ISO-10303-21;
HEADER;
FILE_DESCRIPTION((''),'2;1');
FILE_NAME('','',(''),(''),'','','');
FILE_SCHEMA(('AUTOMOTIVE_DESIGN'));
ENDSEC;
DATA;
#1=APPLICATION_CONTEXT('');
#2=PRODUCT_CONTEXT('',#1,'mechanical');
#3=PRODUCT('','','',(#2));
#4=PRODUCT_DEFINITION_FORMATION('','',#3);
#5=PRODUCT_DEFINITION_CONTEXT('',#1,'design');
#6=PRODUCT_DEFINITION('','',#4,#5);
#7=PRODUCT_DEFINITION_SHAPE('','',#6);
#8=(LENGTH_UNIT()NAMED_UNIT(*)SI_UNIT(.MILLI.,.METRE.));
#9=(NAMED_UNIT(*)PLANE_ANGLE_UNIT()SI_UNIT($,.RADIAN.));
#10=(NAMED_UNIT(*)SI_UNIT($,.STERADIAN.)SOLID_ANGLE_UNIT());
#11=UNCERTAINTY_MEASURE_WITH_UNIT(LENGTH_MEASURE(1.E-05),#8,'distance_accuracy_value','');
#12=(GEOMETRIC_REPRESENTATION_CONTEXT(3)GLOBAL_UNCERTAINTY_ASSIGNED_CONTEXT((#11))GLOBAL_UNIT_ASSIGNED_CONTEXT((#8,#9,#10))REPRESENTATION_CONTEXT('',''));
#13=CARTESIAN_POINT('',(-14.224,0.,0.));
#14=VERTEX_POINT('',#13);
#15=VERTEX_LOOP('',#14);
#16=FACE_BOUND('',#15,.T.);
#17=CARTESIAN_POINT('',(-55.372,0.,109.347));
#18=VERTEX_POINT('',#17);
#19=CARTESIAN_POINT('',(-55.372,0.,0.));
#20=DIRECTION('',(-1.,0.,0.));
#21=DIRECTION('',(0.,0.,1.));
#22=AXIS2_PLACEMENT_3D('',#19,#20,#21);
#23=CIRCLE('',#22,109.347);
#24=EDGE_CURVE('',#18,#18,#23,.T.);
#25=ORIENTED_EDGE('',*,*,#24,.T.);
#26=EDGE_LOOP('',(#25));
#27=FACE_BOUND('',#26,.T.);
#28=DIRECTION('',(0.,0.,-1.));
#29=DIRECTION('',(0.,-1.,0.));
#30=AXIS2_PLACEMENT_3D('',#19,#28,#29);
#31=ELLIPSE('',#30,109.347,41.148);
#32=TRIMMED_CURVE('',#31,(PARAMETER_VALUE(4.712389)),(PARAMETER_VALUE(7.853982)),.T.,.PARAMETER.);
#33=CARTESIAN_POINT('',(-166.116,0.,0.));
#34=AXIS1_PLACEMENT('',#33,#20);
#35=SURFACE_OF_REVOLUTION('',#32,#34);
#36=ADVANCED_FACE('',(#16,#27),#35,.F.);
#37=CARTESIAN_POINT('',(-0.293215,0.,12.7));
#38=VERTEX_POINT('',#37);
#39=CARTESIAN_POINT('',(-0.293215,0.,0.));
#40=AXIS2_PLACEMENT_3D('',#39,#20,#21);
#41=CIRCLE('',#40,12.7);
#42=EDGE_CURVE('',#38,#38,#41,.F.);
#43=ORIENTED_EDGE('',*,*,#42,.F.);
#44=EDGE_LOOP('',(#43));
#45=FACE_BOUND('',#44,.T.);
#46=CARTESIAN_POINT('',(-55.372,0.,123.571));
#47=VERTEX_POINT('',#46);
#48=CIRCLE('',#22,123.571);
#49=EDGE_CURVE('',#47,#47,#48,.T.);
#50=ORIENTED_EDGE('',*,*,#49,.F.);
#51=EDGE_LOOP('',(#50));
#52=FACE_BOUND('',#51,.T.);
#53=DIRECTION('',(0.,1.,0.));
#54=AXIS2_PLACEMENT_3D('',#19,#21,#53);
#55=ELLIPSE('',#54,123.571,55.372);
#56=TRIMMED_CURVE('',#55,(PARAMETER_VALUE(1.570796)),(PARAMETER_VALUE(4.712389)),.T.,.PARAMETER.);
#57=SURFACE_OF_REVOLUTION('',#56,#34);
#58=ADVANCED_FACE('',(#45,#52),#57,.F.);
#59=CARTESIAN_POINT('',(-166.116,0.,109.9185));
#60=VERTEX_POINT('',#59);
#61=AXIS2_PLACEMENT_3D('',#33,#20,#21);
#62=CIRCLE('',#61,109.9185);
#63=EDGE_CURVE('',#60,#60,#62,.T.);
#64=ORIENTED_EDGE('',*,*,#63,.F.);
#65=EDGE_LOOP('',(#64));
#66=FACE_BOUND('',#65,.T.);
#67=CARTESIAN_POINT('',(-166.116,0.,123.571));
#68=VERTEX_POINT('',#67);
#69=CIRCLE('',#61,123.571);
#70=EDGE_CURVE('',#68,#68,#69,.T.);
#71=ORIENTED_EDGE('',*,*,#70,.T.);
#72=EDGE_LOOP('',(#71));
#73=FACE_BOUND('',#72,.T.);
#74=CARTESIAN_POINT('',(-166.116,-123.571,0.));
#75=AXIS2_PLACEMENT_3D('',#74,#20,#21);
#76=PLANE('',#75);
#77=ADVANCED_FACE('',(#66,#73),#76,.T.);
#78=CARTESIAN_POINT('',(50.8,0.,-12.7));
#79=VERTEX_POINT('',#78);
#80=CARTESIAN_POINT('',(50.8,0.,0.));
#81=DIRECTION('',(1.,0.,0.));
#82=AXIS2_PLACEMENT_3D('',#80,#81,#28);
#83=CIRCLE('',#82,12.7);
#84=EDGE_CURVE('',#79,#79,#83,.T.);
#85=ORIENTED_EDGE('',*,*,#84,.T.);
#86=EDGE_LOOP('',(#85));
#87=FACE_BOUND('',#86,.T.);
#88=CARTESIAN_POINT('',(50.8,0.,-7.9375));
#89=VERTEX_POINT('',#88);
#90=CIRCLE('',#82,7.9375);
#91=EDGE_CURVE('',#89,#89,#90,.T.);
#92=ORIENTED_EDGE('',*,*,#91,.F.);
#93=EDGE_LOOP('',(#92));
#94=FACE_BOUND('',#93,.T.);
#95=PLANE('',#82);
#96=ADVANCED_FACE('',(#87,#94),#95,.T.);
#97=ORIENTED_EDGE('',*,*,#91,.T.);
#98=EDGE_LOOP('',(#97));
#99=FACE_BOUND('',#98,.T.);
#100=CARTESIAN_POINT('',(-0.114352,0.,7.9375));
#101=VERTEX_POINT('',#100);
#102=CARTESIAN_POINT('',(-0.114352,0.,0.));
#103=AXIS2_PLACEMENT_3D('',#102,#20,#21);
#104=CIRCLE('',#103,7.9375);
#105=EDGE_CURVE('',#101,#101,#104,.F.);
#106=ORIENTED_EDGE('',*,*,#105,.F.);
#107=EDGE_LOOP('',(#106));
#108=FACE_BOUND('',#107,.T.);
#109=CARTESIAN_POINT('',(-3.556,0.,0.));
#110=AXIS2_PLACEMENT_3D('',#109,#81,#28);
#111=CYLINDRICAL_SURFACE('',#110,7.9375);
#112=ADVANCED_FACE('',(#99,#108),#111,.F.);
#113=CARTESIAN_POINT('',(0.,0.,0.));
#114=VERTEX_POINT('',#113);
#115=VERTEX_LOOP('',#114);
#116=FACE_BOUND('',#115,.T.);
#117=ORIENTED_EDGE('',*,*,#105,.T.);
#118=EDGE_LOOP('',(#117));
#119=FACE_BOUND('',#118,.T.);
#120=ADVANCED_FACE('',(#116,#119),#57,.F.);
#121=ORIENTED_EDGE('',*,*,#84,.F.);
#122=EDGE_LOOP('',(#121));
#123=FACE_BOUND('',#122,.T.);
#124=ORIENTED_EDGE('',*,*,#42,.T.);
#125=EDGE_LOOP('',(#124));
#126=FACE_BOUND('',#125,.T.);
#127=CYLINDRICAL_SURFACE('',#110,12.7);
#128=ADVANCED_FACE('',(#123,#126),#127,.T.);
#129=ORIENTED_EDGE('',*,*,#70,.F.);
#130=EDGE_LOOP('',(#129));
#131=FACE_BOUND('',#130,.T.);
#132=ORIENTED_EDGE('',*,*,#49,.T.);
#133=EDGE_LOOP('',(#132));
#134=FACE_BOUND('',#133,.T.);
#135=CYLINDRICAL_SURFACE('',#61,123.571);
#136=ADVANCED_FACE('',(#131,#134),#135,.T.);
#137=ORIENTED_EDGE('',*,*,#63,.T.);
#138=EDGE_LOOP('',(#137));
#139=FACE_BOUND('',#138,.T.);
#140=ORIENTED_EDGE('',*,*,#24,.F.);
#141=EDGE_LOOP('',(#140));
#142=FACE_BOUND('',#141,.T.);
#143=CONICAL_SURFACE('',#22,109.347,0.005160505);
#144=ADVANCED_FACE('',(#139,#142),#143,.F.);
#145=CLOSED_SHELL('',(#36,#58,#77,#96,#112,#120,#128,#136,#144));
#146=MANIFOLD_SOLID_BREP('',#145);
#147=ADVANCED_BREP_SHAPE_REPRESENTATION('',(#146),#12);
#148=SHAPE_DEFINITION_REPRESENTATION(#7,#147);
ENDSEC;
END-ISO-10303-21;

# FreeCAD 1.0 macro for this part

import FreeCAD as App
import Part
import Sketcher
from FreeCAD import Vector
Q = App.Units.Quantity

doc = App.newDocument("Part")
body = doc.addObject("PartDesign::Body", "Body")

# Sketch on XY plane
sketch1 = body.newObject("Sketcher::SketchObject", "Sketch")
sketch1.AttachmentSupport = (doc.getObject("XY_Plane"), [""])
sketch1.MapMode = "FlatFace"
sketch1.addGeometry(Part.LineSegment(Vector(-166.116, -123.571, 0), Vector(-55.372, -123.571, 0)), False)
sketch1.addGeometry(Part.BSplineCurve([Vector(-55.372, -123.571, 0), Vector(0, -123.571, 0), Vector(0, 0, 0)], [3, 3], [3.141592654, 4.71238898], False, 2, [1, 0.707106781, 1], False), False)
sketch1.addGeometry(Part.LineSegment(Vector(0, 0, 0), Vector(-14.224, 0, 0)), False)
sketch1.addGeometry(Part.BSplineCurve([Vector(-55.372, -109.347, 0), Vector(-14.224, -109.347, 0), Vector(-14.224, 0, 0)], [3, 3], [0, 1.570796327], False, 2, [1, 0.707106781, 1], False), False)
sketch1.addGeometry(Part.LineSegment(Vector(-55.372, -109.347, 0), Vector(-166.116, -109.9185, 0)), False)
sketch1.addGeometry(Part.LineSegment(Vector(-166.116, -109.9185, 0), Vector(-166.116, -123.571, 0)), False)
sketch1.addConstraint(Sketcher.Constraint("Block", 1))
sketch1.addConstraint(Sketcher.Constraint("Block", 3))
sketch1.addConstraint(Sketcher.Constraint("Coincident", 0, 2, 1, 1))
sketch1.addConstraint(Sketcher.Constraint("Coincident", 1, 2, 2, 1))
sketch1.addConstraint(Sketcher.Constraint("Coincident", 2, 2, 3, 2))
sketch1.addConstraint(Sketcher.Constraint("Coincident", 3, 1, 4, 1))
sketch1.addConstraint(Sketcher.Constraint("Coincident", 4, 2, 5, 1))
sketch1.addConstraint(Sketcher.Constraint("Coincident", 5, 2, 0, 1))
sketch1.addConstraint(Sketcher.Constraint("Horizontal", 0))
sketch1.addConstraint(Sketcher.Constraint("Vertical", 5))
sketch1.addConstraint(Sketcher.Constraint("DistanceX", 0, 1, 0, 2, Q("4.36 in")))
sketch1.addConstraint(Sketcher.Constraint("DistanceY", 5, 2, 5, 1, Q("0.5375 in")))
revolution = body.newObject("PartDesign::Revolution", "Revolution")
revolution.Profile = sketch1
revolution.ReferenceAxis = (sketch1, ["H_Axis"])
revolution.Angle = 360

# Sketch on YZ plane
sketch2 = body.newObject("Sketcher::SketchObject", "Sketch001")
sketch2.AttachmentSupport = (doc.getObject("YZ_Plane"), [""])
sketch2.MapMode = "FlatFace"
sketch2.addGeometry(Part.Circle(Vector(0, 0, 0), Vector(0, 0, 1), 13), False)
sketch2.addGeometry(Part.Circle(Vector(0, 0, 0), Vector(0, 0, 1), 8), False)
sketch2.addConstraint(Sketcher.Constraint("Coincident", 0, 3, -1, 1))
sketch2.addConstraint(Sketcher.Constraint("Coincident", 1, 3, -1, 1))
sketch2.addConstraint(Sketcher.Constraint("Diameter", 0, Q("1 in")))
sketch2.addConstraint(Sketcher.Constraint("Diameter", 1, Q("0.625 in")))
pad1 = body.newObject("PartDesign::Pad", "Pad")
pad1.Profile = sketch2
pad1.Type = "TwoLengths"
pad1.Length = Q("2 in")
pad1.Length2 = Q("0.14 in")

doc.recompute()
